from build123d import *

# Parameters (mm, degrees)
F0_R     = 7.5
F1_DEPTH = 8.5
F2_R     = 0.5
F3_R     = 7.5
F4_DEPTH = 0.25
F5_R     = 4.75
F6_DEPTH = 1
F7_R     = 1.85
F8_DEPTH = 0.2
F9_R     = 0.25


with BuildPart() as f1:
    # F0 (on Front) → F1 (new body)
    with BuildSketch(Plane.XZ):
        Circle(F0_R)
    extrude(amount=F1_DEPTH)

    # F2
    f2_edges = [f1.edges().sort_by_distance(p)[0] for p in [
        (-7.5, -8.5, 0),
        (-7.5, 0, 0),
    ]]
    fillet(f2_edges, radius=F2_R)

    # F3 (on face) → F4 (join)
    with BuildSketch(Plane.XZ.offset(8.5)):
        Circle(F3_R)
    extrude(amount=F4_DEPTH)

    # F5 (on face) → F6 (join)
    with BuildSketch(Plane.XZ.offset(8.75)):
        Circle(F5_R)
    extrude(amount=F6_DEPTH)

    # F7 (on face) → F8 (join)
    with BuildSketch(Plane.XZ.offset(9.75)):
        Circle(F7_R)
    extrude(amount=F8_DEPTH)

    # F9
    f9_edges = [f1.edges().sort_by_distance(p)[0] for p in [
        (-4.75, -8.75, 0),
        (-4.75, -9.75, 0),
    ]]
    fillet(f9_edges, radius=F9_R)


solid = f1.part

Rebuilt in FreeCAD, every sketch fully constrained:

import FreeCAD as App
import Part
import Sketcher


def edges_at(feature, points):
    """Names of the edges that pass closest to the given points."""
    edges = feature.Shape.Edges
    near = lambda p: min(range(len(edges)), key=lambda i: edges[i].distToShape(Part.Vertex(*p))[0])
    return sorted({f"Edge{near(p) + 1}" for p in points})

doc = App.newDocument("Part")
body = doc.addObject("PartDesign::Body", "Body")

# Sketch on XZ plane
sketch1 = body.newObject("Sketcher::SketchObject", "Sketch")
sketch1.AttachmentSupport = (doc.getObject("XZ_Plane"), [""])
sketch1.MapMode = "FlatFace"
sketch1.addGeometry(Part.Circle(App.Vector(0, 0, 0), App.Vector(0, 0, 1), 8), False)
sketch1.addConstraint(Sketcher.Constraint("Coincident", 0, 3, -1, 1))
sketch1.addConstraint(Sketcher.Constraint("Diameter", 0, 15.0))
pad1 = body.newObject("PartDesign::Pad", "Pad")
pad1.Profile = sketch1
pad1.Length = 8.5
doc.recompute()

fillet = body.newObject("PartDesign::Fillet", "Fillet")
fillet.Base = (pad1, edges_at(pad1, [(-7.5, -8.5, 0), (-7.5, 0, 0)]))
fillet.Radius = 0.5

# Sketch on XZ plane
sketch2 = body.newObject("Sketcher::SketchObject", "Sketch001")
sketch2.AttachmentSupport = (doc.getObject("XZ_Plane"), [""])
sketch2.MapMode = "FlatFace"
sketch2.AttachmentOffset = App.Placement(App.Vector(0, 0, 8.5), App.Rotation())
sketch2.addGeometry(Part.Circle(App.Vector(0, 0, 0), App.Vector(0, 0, 1), 8), False)
sketch2.addConstraint(Sketcher.Constraint("Coincident", 0, 3, -1, 1))
sketch2.addConstraint(Sketcher.Constraint("Diameter", 0, 15.0))
pad2 = body.newObject("PartDesign::Pad", "Pad001")
pad2.Profile = sketch2
pad2.Length = 0.25

# Sketch on XZ plane
sketch3 = body.newObject("Sketcher::SketchObject", "Sketch002")
sketch3.AttachmentSupport = (doc.getObject("XZ_Plane"), [""])
sketch3.MapMode = "FlatFace"
sketch3.AttachmentOffset = App.Placement(App.Vector(0, 0, 8.75), App.Rotation())
sketch3.addGeometry(Part.Circle(App.Vector(0, 0, 0), App.Vector(0, 0, 1), 4.8), False)
sketch3.addConstraint(Sketcher.Constraint("Coincident", 0, 3, -1, 1))
sketch3.addConstraint(Sketcher.Constraint("Diameter", 0, 9.5))
pad3 = body.newObject("PartDesign::Pad", "Pad002")
pad3.Profile = sketch3
pad3.Length = 1

# Sketch on XZ plane
sketch4 = body.newObject("Sketcher::SketchObject", "Sketch003")
sketch4.AttachmentSupport = (doc.getObject("XZ_Plane"), [""])
sketch4.MapMode = "FlatFace"
sketch4.AttachmentOffset = App.Placement(App.Vector(0, 0, 9.75), App.Rotation())
sketch4.addGeometry(Part.Circle(App.Vector(0, 0, 0), App.Vector(0, 0, 1), 1.9), False)
sketch4.addConstraint(Sketcher.Constraint("Coincident", 0, 3, -1, 1))
sketch4.addConstraint(Sketcher.Constraint("Diameter", 0, 3.7))
pad4 = body.newObject("PartDesign::Pad", "Pad003")
pad4.Profile = sketch4
pad4.Length = 0.2
doc.recompute()

fillet2 = body.newObject("PartDesign::Fillet", "Fillet001")
fillet2.Base = (pad4, edges_at(pad4, [(-4.75, -8.75, 0), (-4.75, -9.75, 0)]))
fillet2.Radius = 0.25

doc.recompute()
